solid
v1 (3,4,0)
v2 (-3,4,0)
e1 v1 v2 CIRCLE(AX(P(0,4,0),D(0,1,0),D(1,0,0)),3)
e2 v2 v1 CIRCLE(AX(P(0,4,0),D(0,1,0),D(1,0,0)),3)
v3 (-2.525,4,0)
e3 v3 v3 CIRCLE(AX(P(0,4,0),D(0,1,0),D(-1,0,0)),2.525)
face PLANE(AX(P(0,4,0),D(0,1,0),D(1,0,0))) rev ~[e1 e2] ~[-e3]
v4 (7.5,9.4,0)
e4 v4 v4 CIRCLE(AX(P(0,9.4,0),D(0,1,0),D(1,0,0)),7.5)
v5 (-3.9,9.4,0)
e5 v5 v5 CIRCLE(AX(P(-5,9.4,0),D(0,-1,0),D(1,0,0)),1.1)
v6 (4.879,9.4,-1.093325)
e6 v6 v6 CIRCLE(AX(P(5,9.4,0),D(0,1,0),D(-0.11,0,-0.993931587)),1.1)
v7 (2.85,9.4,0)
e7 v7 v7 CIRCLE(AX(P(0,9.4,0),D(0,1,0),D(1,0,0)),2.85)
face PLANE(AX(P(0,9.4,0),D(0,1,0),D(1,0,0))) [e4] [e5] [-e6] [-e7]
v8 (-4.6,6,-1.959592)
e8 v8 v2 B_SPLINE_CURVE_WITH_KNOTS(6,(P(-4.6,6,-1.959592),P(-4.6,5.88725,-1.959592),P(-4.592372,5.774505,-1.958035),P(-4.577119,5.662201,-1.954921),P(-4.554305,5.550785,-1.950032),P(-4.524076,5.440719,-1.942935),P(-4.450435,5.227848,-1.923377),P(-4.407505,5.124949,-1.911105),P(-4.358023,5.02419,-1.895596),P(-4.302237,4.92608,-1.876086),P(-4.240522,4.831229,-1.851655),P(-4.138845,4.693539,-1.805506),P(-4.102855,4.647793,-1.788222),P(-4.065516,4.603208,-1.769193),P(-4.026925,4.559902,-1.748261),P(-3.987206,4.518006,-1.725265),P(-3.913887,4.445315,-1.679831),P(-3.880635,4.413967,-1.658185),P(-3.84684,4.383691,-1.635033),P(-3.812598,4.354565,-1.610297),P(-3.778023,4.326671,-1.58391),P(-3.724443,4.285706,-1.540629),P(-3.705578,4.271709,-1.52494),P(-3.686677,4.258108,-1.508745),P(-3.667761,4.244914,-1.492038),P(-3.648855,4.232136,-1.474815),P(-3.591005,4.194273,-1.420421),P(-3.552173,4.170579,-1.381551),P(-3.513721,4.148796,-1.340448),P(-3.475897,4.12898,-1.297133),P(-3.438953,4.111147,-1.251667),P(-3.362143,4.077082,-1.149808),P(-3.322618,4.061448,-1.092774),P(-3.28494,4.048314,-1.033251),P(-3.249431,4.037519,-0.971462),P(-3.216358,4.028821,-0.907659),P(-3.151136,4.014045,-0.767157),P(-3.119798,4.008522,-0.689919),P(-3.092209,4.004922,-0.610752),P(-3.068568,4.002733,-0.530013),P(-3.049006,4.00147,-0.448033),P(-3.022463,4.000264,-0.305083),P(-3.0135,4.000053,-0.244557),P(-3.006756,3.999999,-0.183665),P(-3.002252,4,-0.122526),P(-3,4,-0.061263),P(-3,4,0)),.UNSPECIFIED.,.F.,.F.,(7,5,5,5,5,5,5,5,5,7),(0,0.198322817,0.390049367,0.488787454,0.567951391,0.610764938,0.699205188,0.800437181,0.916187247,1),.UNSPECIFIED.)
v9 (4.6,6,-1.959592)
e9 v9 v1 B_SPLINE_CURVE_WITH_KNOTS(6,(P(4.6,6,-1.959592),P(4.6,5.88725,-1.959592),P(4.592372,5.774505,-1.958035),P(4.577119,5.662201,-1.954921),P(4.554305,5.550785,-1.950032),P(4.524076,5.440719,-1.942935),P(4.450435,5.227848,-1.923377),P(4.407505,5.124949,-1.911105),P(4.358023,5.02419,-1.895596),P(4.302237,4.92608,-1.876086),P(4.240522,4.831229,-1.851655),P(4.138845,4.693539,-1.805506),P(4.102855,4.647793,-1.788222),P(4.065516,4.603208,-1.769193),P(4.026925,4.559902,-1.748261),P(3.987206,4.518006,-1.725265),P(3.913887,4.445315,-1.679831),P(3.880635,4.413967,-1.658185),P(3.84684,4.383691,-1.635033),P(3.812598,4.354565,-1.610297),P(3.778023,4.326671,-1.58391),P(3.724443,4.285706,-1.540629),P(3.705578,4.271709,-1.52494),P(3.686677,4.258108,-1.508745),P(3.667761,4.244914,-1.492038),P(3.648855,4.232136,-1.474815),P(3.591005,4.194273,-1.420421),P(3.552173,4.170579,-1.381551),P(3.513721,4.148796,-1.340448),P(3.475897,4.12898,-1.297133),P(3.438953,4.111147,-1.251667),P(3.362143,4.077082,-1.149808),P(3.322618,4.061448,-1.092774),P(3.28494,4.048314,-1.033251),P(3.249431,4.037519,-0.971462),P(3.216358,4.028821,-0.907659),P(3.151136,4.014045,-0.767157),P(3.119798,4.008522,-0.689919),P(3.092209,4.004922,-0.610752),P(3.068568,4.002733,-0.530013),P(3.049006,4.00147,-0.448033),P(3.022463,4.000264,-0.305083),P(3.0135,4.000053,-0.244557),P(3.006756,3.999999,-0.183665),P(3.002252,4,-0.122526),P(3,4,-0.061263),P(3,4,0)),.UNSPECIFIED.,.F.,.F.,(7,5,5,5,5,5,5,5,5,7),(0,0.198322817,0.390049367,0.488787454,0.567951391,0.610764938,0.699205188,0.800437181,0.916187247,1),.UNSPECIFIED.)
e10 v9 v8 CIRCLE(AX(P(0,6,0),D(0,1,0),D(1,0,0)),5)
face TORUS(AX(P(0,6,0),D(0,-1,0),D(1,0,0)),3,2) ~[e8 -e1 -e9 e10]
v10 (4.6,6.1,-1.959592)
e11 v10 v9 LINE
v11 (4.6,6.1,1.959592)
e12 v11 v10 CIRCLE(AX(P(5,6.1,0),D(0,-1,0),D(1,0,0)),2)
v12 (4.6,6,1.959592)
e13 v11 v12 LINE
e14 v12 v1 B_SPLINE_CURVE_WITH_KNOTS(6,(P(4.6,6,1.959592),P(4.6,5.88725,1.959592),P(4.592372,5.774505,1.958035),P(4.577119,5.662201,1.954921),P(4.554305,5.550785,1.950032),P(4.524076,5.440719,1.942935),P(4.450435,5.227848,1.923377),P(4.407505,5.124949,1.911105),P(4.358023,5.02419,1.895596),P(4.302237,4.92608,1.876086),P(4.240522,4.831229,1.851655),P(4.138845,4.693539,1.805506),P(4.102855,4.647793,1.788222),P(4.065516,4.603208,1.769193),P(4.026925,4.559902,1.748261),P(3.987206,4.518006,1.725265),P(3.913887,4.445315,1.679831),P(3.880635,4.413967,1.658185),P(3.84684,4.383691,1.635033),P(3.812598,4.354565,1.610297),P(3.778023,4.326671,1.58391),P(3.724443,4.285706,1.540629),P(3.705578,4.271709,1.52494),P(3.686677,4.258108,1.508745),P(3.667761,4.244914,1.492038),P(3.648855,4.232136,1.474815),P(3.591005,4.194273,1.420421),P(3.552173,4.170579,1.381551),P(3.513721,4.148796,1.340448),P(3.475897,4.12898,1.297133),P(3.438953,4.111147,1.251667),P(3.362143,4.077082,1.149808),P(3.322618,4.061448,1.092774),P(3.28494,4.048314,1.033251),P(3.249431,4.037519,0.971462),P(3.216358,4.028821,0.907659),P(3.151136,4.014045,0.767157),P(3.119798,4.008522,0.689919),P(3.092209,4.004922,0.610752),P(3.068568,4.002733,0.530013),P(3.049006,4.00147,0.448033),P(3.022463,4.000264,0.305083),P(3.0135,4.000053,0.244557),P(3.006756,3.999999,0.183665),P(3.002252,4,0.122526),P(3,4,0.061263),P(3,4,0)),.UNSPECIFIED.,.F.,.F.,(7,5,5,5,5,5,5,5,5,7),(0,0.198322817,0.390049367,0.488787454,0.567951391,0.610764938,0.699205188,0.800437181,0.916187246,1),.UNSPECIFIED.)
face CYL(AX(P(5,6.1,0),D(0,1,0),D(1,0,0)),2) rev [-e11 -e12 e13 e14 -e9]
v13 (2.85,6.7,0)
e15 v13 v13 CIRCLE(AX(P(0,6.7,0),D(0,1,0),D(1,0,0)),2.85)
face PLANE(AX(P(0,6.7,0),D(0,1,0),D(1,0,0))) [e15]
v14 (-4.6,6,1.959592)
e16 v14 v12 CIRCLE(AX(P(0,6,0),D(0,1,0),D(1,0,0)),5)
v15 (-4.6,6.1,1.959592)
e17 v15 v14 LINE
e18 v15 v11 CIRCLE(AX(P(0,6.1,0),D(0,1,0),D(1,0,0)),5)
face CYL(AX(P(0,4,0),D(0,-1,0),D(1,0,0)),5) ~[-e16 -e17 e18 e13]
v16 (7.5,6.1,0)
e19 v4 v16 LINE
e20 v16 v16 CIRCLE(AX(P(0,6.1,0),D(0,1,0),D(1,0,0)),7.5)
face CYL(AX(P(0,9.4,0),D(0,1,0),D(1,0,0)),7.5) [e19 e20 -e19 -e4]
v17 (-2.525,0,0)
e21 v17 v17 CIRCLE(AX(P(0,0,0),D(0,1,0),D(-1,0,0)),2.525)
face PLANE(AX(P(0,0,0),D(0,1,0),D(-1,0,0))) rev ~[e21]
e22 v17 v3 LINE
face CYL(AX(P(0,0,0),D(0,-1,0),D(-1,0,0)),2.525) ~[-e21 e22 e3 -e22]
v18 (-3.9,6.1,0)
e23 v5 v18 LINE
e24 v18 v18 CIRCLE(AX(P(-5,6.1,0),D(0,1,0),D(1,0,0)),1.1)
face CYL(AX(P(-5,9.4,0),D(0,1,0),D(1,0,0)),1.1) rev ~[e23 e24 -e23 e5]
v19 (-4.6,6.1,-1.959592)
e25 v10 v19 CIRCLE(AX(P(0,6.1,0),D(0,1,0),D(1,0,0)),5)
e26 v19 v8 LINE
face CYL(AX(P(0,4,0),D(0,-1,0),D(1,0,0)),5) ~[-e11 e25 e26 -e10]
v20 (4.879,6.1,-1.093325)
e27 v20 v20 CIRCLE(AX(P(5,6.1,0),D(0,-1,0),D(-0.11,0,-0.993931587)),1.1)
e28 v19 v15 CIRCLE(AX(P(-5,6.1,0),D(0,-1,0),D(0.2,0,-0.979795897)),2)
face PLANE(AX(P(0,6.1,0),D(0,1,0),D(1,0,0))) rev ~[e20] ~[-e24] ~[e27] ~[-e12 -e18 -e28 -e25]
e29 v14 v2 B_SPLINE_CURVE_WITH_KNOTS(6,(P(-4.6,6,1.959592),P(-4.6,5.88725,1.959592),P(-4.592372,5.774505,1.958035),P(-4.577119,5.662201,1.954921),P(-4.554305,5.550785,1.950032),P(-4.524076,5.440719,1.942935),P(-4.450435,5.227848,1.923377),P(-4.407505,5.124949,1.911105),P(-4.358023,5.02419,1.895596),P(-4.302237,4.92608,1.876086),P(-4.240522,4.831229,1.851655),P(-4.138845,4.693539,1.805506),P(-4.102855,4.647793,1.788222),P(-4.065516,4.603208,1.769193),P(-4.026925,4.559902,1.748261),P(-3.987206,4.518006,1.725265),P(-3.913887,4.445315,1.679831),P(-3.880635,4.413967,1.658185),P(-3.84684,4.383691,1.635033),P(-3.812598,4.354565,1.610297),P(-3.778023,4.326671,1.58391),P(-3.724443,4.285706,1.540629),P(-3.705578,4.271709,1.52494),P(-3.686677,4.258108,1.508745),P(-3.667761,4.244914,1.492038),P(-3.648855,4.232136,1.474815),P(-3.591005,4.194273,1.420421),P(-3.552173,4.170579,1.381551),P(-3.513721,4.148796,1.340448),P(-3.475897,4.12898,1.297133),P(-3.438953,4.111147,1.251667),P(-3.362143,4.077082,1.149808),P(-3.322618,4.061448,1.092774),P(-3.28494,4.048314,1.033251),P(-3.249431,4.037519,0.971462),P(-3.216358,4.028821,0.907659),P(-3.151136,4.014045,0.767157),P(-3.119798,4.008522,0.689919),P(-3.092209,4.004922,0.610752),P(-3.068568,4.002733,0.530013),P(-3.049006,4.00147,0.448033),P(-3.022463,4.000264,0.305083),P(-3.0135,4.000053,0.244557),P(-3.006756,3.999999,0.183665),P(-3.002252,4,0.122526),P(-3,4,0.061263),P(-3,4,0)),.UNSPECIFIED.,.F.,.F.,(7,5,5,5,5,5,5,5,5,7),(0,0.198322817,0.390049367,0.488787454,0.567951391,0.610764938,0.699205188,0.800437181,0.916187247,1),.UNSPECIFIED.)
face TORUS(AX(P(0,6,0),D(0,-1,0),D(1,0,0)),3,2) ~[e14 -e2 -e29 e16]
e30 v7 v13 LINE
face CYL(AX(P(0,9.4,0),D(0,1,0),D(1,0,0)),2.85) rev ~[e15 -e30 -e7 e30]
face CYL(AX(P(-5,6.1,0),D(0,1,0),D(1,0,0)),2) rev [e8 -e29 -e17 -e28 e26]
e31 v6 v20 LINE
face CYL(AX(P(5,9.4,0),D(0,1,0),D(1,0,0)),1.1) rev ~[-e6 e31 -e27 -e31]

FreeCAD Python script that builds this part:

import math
import FreeCAD as App
import Part
import Sketcher

V = App.Vector


def edges_at(feature, points):
    """Names of the edges that pass closest to the given points."""
    edges = feature.Shape.Edges
    near = lambda p: min(range(len(edges)), key=lambda i: edges[i].distToShape(Part.Vertex(*p))[0])
    return sorted({f"Edge{near(p) + 1}" for p in points})

doc = App.newDocument("Part")
body = doc.addObject("PartDesign::Body", "Body")

sketch1 = body.newObject("Sketcher::SketchObject", "Sketch")
sketch1.AttachmentSupport = (doc.getObject("XZ_Plane"), [""])
sketch1.MapMode = "FlatFace"
sketch1.addGeometry(Part.Circle(V(0, 0, 0), V(0, 0, 1), 2.5), False)
sketch1.addConstraint(Sketcher.Constraint("Coincident", 0, 3, -1, 1))
sketch1.addConstraint(Sketcher.Constraint("Diameter", 0, 5.05))
pad1 = body.newObject("PartDesign::Pad", "Pad")
pad1.Profile = sketch1
pad1.Length = 4
pad1.Reversed = True

sketch2 = body.newObject("Sketcher::SketchObject", "Sketch001")
sketch2.AttachmentSupport = (doc.getObject("XZ_Plane"), [""])
sketch2.MapMode = "FlatFace"
sketch2.AttachmentOffset = App.Placement(V(0, 0, -4), App.Rotation())
sketch2.addGeometry(Part.Circle(V(0, 0, 0), V(0, 0, 1), 5), False)
sketch2.addConstraint(Sketcher.Constraint("Coincident", 0, 3, -1, 1))
sketch2.addConstraint(Sketcher.Constraint("Diameter", 0, 10.0))
pad2 = body.newObject("PartDesign::Pad", "Pad001")
pad2.Profile = sketch2
pad2.Length = 5.4
pad2.Reversed = True
doc.recompute()

fillet = body.newObject("PartDesign::Fillet", "Fillet")
fillet.Base = (pad2, edges_at(pad2, [(-5, 4, 0)]))
fillet.Radius = 2

sketch3 = body.newObject("Sketcher::SketchObject", "Sketch002")
sketch3.AttachmentSupport = (doc.getObject("XZ_Plane"), [""])
sketch3.MapMode = "FlatFace"
sketch3.AttachmentOffset = App.Placement(V(0, 0, -9.4), App.Rotation())
sketch3.addGeometry(Part.Circle(V(0, 0, 0), V(0, 0, 1), 7.5), False)
sketch3.addGeometry(Part.ArcOfCircle(Part.Circle(V(5, 0, 0), V(0, 0, 1), 1.1), math.radians(-96), math.radians(96)), False)
sketch3.addGeometry(Part.ArcOfCircle(Part.Circle(V(0, 0, 0), V(0, 0, 1), 5), math.radians(13), math.radians(167)), False)
sketch3.addGeometry(Part.ArcOfCircle(Part.Circle(V(-5, 0, 0), V(0, 0, 1), 1.1), math.radians(84), math.radians(276)), False)
sketch3.addGeometry(Part.ArcOfCircle(Part.Circle(V(0, 0, 0), V(0, 0, 1), 5), math.radians(-167), math.radians(-13)), False)
sketch3.addConstraint(Sketcher.Constraint("Coincident", 1, 2, 2, 1))
sketch3.addConstraint(Sketcher.Constraint("Coincident", 2, 2, 3, 1))
sketch3.addConstraint(Sketcher.Constraint("Coincident", 3, 2, 4, 1))
sketch3.addConstraint(Sketcher.Constraint("Coincident", 4, 2, 1, 1))
sketch3.addConstraint(Sketcher.Constraint("Coincident", 0, 3, -1, 1))
sketch3.addConstraint(Sketcher.Constraint("Coincident", 2, 3, -1, 1))
sketch3.addConstraint(Sketcher.Constraint("Coincident", 4, 3, -1, 1))
sketch3.addConstraint(Sketcher.Constraint("Equal", 1, 3))
sketch3.addConstraint(Sketcher.Constraint("Equal", 2, 4))
sketch3.addConstraint(Sketcher.Constraint("Symmetric", 1, 3, 3, 3, -1, 1))
sketch3.addConstraint(Sketcher.Constraint("PointOnObject", 1, 3, -1))
sketch3.addConstraint(Sketcher.Constraint("Diameter", 0, 15.0))
sketch3.addConstraint(Sketcher.Constraint("Radius", 1, 1.1))
sketch3.addConstraint(Sketcher.Constraint("Radius", 2, 5.0))
sketch3.addConstraint(Sketcher.Constraint("DistanceX", -1, 1, 1, 3, 5.0))
pad3 = body.newObject("PartDesign::Pad", "Pad002")
pad3.Profile = sketch3
pad3.Length = 3.3

sketch4 = body.newObject("Sketcher::SketchObject", "Sketch003")
sketch4.AttachmentSupport = (doc.getObject("XZ_Plane"), [""])
sketch4.MapMode = "FlatFace"
sketch4.AttachmentOffset = App.Placement(V(0, 0, -9.4), App.Rotation())
sketch4.addGeometry(Part.Circle(V(5, 0, 0), V(0, 0, 1), 1.1), False)
sketch4.addGeometry(Part.Circle(V(-5, 0, 0), V(0, 0, 1), 1.1), False)
sketch4.addConstraint(Sketcher.Constraint("Equal", 0, 1))
sketch4.addConstraint(Sketcher.Constraint("Symmetric", 0, 3, 1, 3, -1, 1))
sketch4.addConstraint(Sketcher.Constraint("PointOnObject", 0, 3, -1))
sketch4.addConstraint(Sketcher.Constraint("Diameter", 0, 2.2))
sketch4.addConstraint(Sketcher.Constraint("DistanceX", -1, 1, 0, 3, 5.0))
pocket1 = body.newObject("PartDesign::Pocket", "Pocket")
pocket1.Profile = sketch4
pocket1.Length = 5.4
pocket1.Reversed = True

sketch5 = body.newObject("Sketcher::SketchObject", "Sketch004")
sketch5.AttachmentSupport = (doc.getObject("XZ_Plane"), [""])
sketch5.MapMode = "FlatFace"
sketch5.AttachmentOffset = App.Placement(V(0, 0, -6.1), App.Rotation())
sketch5.addGeometry(Part.Circle(V(-5, 0, 0), V(0, 0, 1), 2), False)
sketch5.addGeometry(Part.Circle(V(5, 0, 0), V(0, 0, 1), 2), False)
sketch5.addConstraint(Sketcher.Constraint("Equal", 0, 1))
sketch5.addConstraint(Sketcher.Constraint("Symmetric", 0, 3, 1, 3, -1, 1))
sketch5.addConstraint(Sketcher.Constraint("PointOnObject", 0, 3, -1))
sketch5.addConstraint(Sketcher.Constraint("Diameter", 0, 4.0))
sketch5.addConstraint(Sketcher.Constraint("DistanceX", 0, 3, -1, 1, 5.0))
pocket2 = body.newObject("PartDesign::Pocket", "Pocket001")
pocket2.Profile = sketch5
pocket2.Length = 3.3
pocket2.Reversed = True

sketch6 = body.newObject("Sketcher::SketchObject", "Sketch005")
sketch6.AttachmentSupport = (doc.getObject("XZ_Plane"), [""])
sketch6.MapMode = "FlatFace"
sketch6.AttachmentOffset = App.Placement(V(0, 0, -9.4), App.Rotation())
sketch6.addGeometry(Part.Circle(V(0, 0, 0), V(0, 0, 1), 2.9), False)
sketch6.addConstraint(Sketcher.Constraint("Coincident", 0, 3, -1, 1))
sketch6.addConstraint(Sketcher.Constraint("Diameter", 0, 5.7))
pocket3 = body.newObject("PartDesign::Pocket", "Pocket002")
pocket3.Profile = sketch6
pocket3.Length = 2.7
pocket3.Reversed = True

doc.recompute()
